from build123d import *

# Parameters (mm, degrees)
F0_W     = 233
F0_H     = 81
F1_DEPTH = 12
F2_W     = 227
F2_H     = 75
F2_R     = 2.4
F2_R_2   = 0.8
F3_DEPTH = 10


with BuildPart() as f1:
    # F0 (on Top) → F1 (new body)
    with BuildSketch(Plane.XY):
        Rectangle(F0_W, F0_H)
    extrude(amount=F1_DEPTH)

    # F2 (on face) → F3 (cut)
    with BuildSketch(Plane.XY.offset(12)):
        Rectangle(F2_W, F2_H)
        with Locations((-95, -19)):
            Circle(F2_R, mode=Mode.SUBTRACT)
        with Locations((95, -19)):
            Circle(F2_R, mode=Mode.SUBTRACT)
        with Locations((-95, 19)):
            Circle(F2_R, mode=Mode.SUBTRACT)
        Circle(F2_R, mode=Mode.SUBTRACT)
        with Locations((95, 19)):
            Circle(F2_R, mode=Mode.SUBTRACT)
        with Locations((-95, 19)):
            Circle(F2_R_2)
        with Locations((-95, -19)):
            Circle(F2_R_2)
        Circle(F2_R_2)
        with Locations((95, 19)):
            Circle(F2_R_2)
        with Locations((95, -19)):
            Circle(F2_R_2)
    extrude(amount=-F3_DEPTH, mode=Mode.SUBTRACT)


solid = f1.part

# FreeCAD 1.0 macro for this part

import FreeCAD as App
import Part
import Sketcher
Q = App.Units.Quantity


def add_polygon(sketch, points):
    """Adds a closed chain of lines whose ends are joined by coincident constraints."""
    first, n = sketch.GeometryCount, len(points)
    for a, b in zip(points, points[1:] + points[:1]):
        sketch.addGeometry(Part.LineSegment(App.Vector(*a, 0), App.Vector(*b, 0)), False)
    for i in range(n):
        sketch.addConstraint(Sketcher.Constraint("Coincident", first + i, 2, first + (i + 1) % n, 1))

doc = App.newDocument("Part")
params = doc.addObject("Spreadsheet::Sheet", "Params")
for row, (alias, value) in enumerate([
    ("sketch1_width", "233 mm"),
    ("sketch1_height", "81 mm"),
    ("pad1_length", "12 mm"),
    ("sketch2_diameter", "4.8 mm"),
    ("sketch2_diameter2", "1.6 mm"),
    ("sketch2_width", "227 mm"),
    ("sketch2_height", "75 mm"),
    ("pocket1_length", "10 mm"),
], start=1):
    params.set(f"A{row}", alias)
    params.set(f"B{row}", "=" + value)
    params.setAlias(f"B{row}", alias)

body = doc.addObject("PartDesign::Body", "Body")

# Sketch on XY plane
sketch1 = doc.addObject("Sketcher::SketchObject", "Sketch")
body.addObject(sketch1)
sketch1.AttachmentSupport = (doc.XY_Plane, [""])
sketch1.MapMode = "FlatFace"
add_polygon(sketch1, [(-116, 40), (-116, -40), (116, -40), (116, 40)])  # lines 0-3
sketch1.addConstraint(Sketcher.Constraint("Vertical", 0))
sketch1.addConstraint(Sketcher.Constraint("Horizontal", 1))
sketch1.addConstraint(Sketcher.Constraint("Vertical", 2))
sketch1.addConstraint(Sketcher.Constraint("Horizontal", 3))
sketch1.addConstraint(Sketcher.Constraint("Symmetric", 0, 2, 2, 2, -1, 1))
sketch1.addConstraint(Sketcher.Constraint("DistanceX", 1, 1, 1, 2, Q("233 mm")))
sketch1.addConstraint(Sketcher.Constraint("DistanceY", 0, 2, 0, 1, Q("81 mm")))
sketch1.setExpression("Constraints[9]", "Params.sketch1_width")
sketch1.setExpression("Constraints[10]", "Params.sketch1_height")
pad1 = doc.addObject("PartDesign::Pad", "Pad")
body.addObject(pad1)
pad1.Profile = sketch1
pad1.setExpression("Length", "Params.pad1_length")

# Sketch on XY plane
sketch2 = doc.addObject("Sketcher::SketchObject", "Sketch001")
body.addObject(sketch2)
sketch2.AttachmentSupport = (doc.XY_Plane, [""])
sketch2.MapMode = "FlatFace"
sketch2.AttachmentOffset = App.Placement(App.Vector(0, 0, 12), App.Rotation())
add_polygon(sketch2, [(-113.5, 37.5), (-113.5, -37.5), (113.5, -37.5), (113.5, 37.5)])  # lines 0-3
sketch2.addGeometry(Part.Circle(App.Vector(-95, -19, 0), App.Vector(0, 0, 1), 2.4), False)  # 4
sketch2.addGeometry(Part.Circle(App.Vector(95, -19, 0), App.Vector(0, 0, 1), 2.4), False)  # 5
sketch2.addGeometry(Part.Circle(App.Vector(0, 0, 0), App.Vector(0, 0, 1), 2.4), False)  # 6
sketch2.addGeometry(Part.Circle(App.Vector(-95, 19, 0), App.Vector(0, 0, 1), 2.4), False)  # 7
sketch2.addGeometry(Part.Circle(App.Vector(95, 19, 0), App.Vector(0, 0, 1), 2.4), False)  # 8
sketch2.addGeometry(Part.Circle(App.Vector(-95, 19, 0), App.Vector(0, 0, 1), 0.8), False)  # 9
sketch2.addGeometry(Part.Circle(App.Vector(-95, -19, 0), App.Vector(0, 0, 1), 0.8), False)  # 10
sketch2.addGeometry(Part.Circle(App.Vector(0, 0, 0), App.Vector(0, 0, 1), 0.8), False)  # 11
sketch2.addGeometry(Part.Circle(App.Vector(95, 19, 0), App.Vector(0, 0, 1), 0.8), False)  # 12
sketch2.addGeometry(Part.Circle(App.Vector(95, -19, 0), App.Vector(0, 0, 1), 0.8), False)  # 13
sketch2.addConstraint(Sketcher.Constraint("Vertical", 0))
sketch2.addConstraint(Sketcher.Constraint("Horizontal", 1))
sketch2.addConstraint(Sketcher.Constraint("Vertical", 2))
sketch2.addConstraint(Sketcher.Constraint("Horizontal", 3))
sketch2.addConstraint(Sketcher.Constraint("Coincident", 6, 3, -1, 1))
sketch2.addConstraint(Sketcher.Constraint("Coincident", 11, 3, -1, 1))
sketch2.addConstraint(Sketcher.Constraint("Coincident", 9, 3, 7, 3))
sketch2.addConstraint(Sketcher.Constraint("Coincident", 10, 3, 4, 3))
sketch2.addConstraint(Sketcher.Constraint("Coincident", 12, 3, 8, 3))
sketch2.addConstraint(Sketcher.Constraint("Coincident", 13, 3, 5, 3))
sketch2.addConstraint(Sketcher.Constraint("Equal", 4, 5))
sketch2.addConstraint(Sketcher.Constraint("Equal", 5, 6))
sketch2.addConstraint(Sketcher.Constraint("Equal", 6, 7))
sketch2.addConstraint(Sketcher.Constraint("Equal", 7, 8))
sketch2.addConstraint(Sketcher.Constraint("Equal", 9, 10))
sketch2.addConstraint(Sketcher.Constraint("Equal", 10, 11))
sketch2.addConstraint(Sketcher.Constraint("Equal", 11, 12))
sketch2.addConstraint(Sketcher.Constraint("Equal", 12, 13))
sketch2.addConstraint(Sketcher.Constraint("Symmetric", 5, 3, 7, 3, -1, 1))
sketch2.addConstraint(Sketcher.Constraint("Symmetric", 4, 3, 8, 3, -1, 1))
sketch2.addConstraint(Sketcher.Constraint("Symmetric", 0, 2, 2, 2, -1, 1))
sketch2.addConstraint(Sketcher.Constraint("Symmetric", 4, 3, 5, 3, -2))
sketch2.addConstraint(Sketcher.Constraint("Diameter", 4, Q("4.8 mm")))
sketch2.addConstraint(Sketcher.Constraint("Diameter", 9, Q("1.6 mm")))
sketch2.addConstraint(Sketcher.Constraint("DistanceX", 1, 1, 1, 2, Q("227 mm")))
sketch2.addConstraint(Sketcher.Constraint("DistanceY", 0, 2, 0, 1, Q("75 mm")))
sketch2.addConstraint(Sketcher.Constraint("DistanceX", 4, 3, -1, 1, Q("95 mm")))
sketch2.addConstraint(Sketcher.Constraint("DistanceY", 4, 3, -1, 1, Q("19 mm")))
sketch2.setExpression("Constraints[26]", "Params.sketch2_diameter")
sketch2.setExpression("Constraints[27]", "Params.sketch2_diameter2")
sketch2.setExpression("Constraints[28]", "Params.sketch2_width")
sketch2.setExpression("Constraints[29]", "Params.sketch2_height")
pocket1 = doc.addObject("PartDesign::Pocket", "Pocket")
body.addObject(pocket1)
pocket1.Profile = sketch2
pocket1.setExpression("Length", "Params.pocket1_length")

doc.recompute()
